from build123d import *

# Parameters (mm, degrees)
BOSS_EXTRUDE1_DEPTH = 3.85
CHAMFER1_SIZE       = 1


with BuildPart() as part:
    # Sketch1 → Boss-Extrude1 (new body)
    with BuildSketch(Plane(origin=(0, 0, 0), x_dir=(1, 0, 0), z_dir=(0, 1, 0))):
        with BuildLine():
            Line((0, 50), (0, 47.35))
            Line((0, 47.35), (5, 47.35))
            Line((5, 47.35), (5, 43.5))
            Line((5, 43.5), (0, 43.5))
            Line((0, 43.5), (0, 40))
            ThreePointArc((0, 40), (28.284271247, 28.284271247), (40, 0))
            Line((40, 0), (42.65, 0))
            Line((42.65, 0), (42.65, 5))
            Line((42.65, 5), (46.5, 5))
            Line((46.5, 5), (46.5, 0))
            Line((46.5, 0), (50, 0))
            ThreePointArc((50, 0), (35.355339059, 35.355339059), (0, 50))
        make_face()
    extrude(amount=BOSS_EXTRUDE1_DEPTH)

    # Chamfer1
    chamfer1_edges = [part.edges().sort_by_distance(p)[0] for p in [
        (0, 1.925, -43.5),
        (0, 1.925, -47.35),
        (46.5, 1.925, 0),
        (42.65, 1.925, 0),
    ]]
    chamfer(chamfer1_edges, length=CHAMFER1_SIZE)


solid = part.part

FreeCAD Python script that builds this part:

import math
import FreeCAD as App
import Part
import Sketcher


def edges_at(feature, points):
    """Names of the edges that pass closest to the given points."""
    edges = feature.Shape.Edges
    near = lambda p: min(range(len(edges)), key=lambda i: edges[i].distToShape(Part.Vertex(*p))[0])
    return sorted({f"Edge{near(p) + 1}" for p in points})

doc = App.newDocument("Part")
body = doc.addObject("PartDesign::Body", "Body")

# Sketch on XZ plane
sketch1 = body.newObject("Sketcher::SketchObject", "Sketch")
sketch1.AttachmentSupport = (doc.getObject("XZ_Plane"), [""])
sketch1.MapMode = "FlatFace"
sketch1.addGeometry(Part.LineSegment(App.Vector(0, -50, 0), App.Vector(0, -47.35, 0)), False)
sketch1.addGeometry(Part.LineSegment(App.Vector(0, -47.35, 0), App.Vector(5, -47.35, 0)), False)
sketch1.addGeometry(Part.LineSegment(App.Vector(5, -47.35, 0), App.Vector(5, -43.5, 0)), False)
sketch1.addGeometry(Part.LineSegment(App.Vector(5, -43.5, 0), App.Vector(0, -43.5, 0)), False)
sketch1.addGeometry(Part.LineSegment(App.Vector(0, -43.5, 0), App.Vector(0, -40, 0)), False)
sketch1.addGeometry(Part.ArcOfCircle(Part.Circle(App.Vector(0, 0, 0), App.Vector(0, 0, 1), 40), math.radians(-90), math.radians(0)), False)
sketch1.addGeometry(Part.LineSegment(App.Vector(40, 0, 0), App.Vector(42.65, 0, 0)), False)
sketch1.addGeometry(Part.LineSegment(App.Vector(42.65, 0, 0), App.Vector(42.65, -5, 0)), False)
sketch1.addGeometry(Part.LineSegment(App.Vector(42.65, -5, 0), App.Vector(46.5, -5, 0)), False)
sketch1.addGeometry(Part.LineSegment(App.Vector(46.5, -5, 0), App.Vector(46.5, 0, 0)), False)
sketch1.addGeometry(Part.LineSegment(App.Vector(46.5, 0, 0), App.Vector(50, 0, 0)), False)
sketch1.addGeometry(Part.ArcOfCircle(Part.Circle(App.Vector(0, 0, 0), App.Vector(0, 0, 1), 50), math.radians(-90), math.radians(0)), False)
sketch1.addConstraint(Sketcher.Constraint("Coincident", 0, 2, 1, 1))
sketch1.addConstraint(Sketcher.Constraint("Coincident", 1, 2, 2, 1))
sketch1.addConstraint(Sketcher.Constraint("Coincident", 2, 2, 3, 1))
sketch1.addConstraint(Sketcher.Constraint("Coincident", 3, 2, 4, 1))
sketch1.addConstraint(Sketcher.Constraint("Coincident", 4, 2, 5, 1))
sketch1.addConstraint(Sketcher.Constraint("Coincident", 5, 2, 6, 1))
sketch1.addConstraint(Sketcher.Constraint("Coincident", 6, 2, 7, 1))
sketch1.addConstraint(Sketcher.Constraint("Coincident", 7, 2, 8, 1))
sketch1.addConstraint(Sketcher.Constraint("Coincident", 8, 2, 9, 1))
sketch1.addConstraint(Sketcher.Constraint("Coincident", 9, 2, 10, 1))
sketch1.addConstraint(Sketcher.Constraint("Coincident", 10, 2, 11, 2))
sketch1.addConstraint(Sketcher.Constraint("Coincident", 11, 1, 0, 1))
sketch1.addConstraint(Sketcher.Constraint("Vertical", 0))
sketch1.addConstraint(Sketcher.Constraint("Horizontal", 1))
sketch1.addConstraint(Sketcher.Constraint("Vertical", 2))
sketch1.addConstraint(Sketcher.Constraint("Horizontal", 3))
sketch1.addConstraint(Sketcher.Constraint("Vertical", 4))
sketch1.addConstraint(Sketcher.Constraint("Horizontal", 6))
sketch1.addConstraint(Sketcher.Constraint("Vertical", 7))
sketch1.addConstraint(Sketcher.Constraint("Horizontal", 8))
sketch1.addConstraint(Sketcher.Constraint("Vertical", 9))
sketch1.addConstraint(Sketcher.Constraint("Horizontal", 10))
sketch1.addConstraint(Sketcher.Constraint("Coincident", 5, 3, -1, 1))
sketch1.addConstraint(Sketcher.Constraint("Coincident", 11, 3, -1, 1))
sketch1.addConstraint(Sketcher.Constraint("PointOnObject", 0, 2, -2))
sketch1.addConstraint(Sketcher.Constraint("PointOnObject", 3, 2, -2))
sketch1.addConstraint(Sketcher.Constraint("PointOnObject", 5, 2, -1))
sketch1.addConstraint(Sketcher.Constraint("PointOnObject", 9, 2, -1))
sketch1.addConstraint(Sketcher.Constraint("Equal", 6, 0))
sketch1.addConstraint(Sketcher.Constraint("Equal", 8, 2))
sketch1.addConstraint(Sketcher.Constraint("Equal", 3, 7))
sketch1.addConstraint(Sketcher.Constraint("Radius", 5, 40.0))
sketch1.addConstraint(Sketcher.Constraint("Radius", 11, 50.0))
sketch1.addConstraint(Sketcher.Constraint("DistanceX", 1, 1, 1, 2, 5.0))
sketch1.addConstraint(Sketcher.Constraint("DistanceX", 10, 1, 10, 2, 3.5))
sketch1.addConstraint(Sketcher.Constraint("DistanceX", 6, 1, 6, 2, 2.65))
pad1 = body.newObject("PartDesign::Pad", "Pad")
pad1.Profile = sketch1
pad1.Length = 3.85
pad1.Reversed = True
doc.recompute()

chamfer = body.newObject("PartDesign::Chamfer", "Chamfer")
chamfer.Base = (pad1, edges_at(pad1, [
    (0, 1.925, -43.5),
    (0, 1.925, -47.35),
    (46.5, 1.925, 0),
    (42.65, 1.925, 0),
]))
chamfer.Size = 1

doc.recompute()
